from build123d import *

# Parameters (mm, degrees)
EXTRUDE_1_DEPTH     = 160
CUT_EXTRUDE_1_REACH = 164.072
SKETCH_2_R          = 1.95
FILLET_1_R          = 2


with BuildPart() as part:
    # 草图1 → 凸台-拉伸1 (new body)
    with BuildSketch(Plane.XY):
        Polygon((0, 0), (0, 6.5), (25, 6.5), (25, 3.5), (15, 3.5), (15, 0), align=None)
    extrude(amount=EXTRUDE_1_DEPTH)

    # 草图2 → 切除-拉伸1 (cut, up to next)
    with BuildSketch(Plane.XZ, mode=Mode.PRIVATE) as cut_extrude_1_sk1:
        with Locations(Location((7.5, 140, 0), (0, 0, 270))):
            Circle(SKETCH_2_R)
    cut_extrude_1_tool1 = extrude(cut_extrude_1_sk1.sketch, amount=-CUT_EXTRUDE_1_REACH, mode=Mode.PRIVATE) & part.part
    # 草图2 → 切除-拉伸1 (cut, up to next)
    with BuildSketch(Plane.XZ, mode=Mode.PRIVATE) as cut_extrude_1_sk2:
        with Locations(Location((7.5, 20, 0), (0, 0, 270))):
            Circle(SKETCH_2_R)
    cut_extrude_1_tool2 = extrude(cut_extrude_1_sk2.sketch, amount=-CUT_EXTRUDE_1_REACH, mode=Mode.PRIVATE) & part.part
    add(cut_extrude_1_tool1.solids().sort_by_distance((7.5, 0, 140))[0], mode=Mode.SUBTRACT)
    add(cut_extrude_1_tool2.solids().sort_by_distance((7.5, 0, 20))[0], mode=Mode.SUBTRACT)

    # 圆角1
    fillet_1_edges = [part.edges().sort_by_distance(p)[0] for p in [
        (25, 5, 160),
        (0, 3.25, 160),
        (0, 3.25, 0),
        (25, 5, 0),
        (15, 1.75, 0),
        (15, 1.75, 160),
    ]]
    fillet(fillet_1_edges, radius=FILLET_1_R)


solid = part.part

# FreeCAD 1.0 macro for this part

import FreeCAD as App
import Part
import Sketcher


def edges_at(feature, points):
    """Names of the edges that pass closest to the given points."""
    edges = feature.Shape.Edges
    near = lambda p: min(range(len(edges)), key=lambda i: edges[i].distToShape(Part.Vertex(*p))[0])
    return sorted({f"Edge{near(p) + 1}" for p in points})


def add_polygon(sketch, points):
    """Adds a closed chain of lines whose ends are joined by coincident constraints."""
    first, n = sketch.GeometryCount, len(points)
    for a, b in zip(points, points[1:] + points[:1]):
        sketch.addGeometry(Part.LineSegment(App.Vector(*a, 0), App.Vector(*b, 0)), False)
    for i in range(n):
        sketch.addConstraint(Sketcher.Constraint("Coincident", first + i, 2, first + (i + 1) % n, 1))

doc = App.newDocument("Part")
body = doc.addObject("PartDesign::Body", "Body")

# Sketch on XY plane
sketch1 = body.newObject("Sketcher::SketchObject", "Sketch")
sketch1.AttachmentSupport = (doc.getObject("XY_Plane"), [""])
sketch1.MapMode = "FlatFace"
add_polygon(sketch1, [(0, 6.5), (0, 0), (15, 0), (15, 3.5), (25, 3.5), (25, 6.5)])  # lines 0-5
sketch1.addConstraint(Sketcher.Constraint("Vertical", 0))
sketch1.addConstraint(Sketcher.Constraint("Horizontal", 1))
sketch1.addConstraint(Sketcher.Constraint("Vertical", 2))
sketch1.addConstraint(Sketcher.Constraint("Horizontal", 3))
sketch1.addConstraint(Sketcher.Constraint("Vertical", 4))
sketch1.addConstraint(Sketcher.Constraint("Horizontal", 5))
sketch1.addConstraint(Sketcher.Constraint("Coincident", 0, 2, -1, 1))
sketch1.addConstraint(Sketcher.Constraint("DistanceX", 1, 1, 1, 2, 15.0))
sketch1.addConstraint(Sketcher.Constraint("DistanceX", 3, 1, 3, 2, 10.0))
sketch1.addConstraint(Sketcher.Constraint("DistanceY", 4, 1, 4, 2, 3.0))
sketch1.addConstraint(Sketcher.Constraint("DistanceY", 0, 2, 0, 1, 6.5))
pad1 = body.newObject("PartDesign::Pad", "Pad")
pad1.Profile = sketch1
pad1.Length = 160

# Sketch on XZ plane
sketch2 = body.newObject("Sketcher::SketchObject", "Sketch001")
sketch2.AttachmentSupport = (doc.getObject("XZ_Plane"), [""])
sketch2.MapMode = "FlatFace"
sketch2.addGeometry(Part.Circle(App.Vector(7.5, 140, 0), App.Vector(0, 0, 1), 1.95), False)
sketch2.addConstraint(Sketcher.Constraint("Diameter", 0, 3.9))
sketch2.addConstraint(Sketcher.Constraint("DistanceY", -1, 1, 0, 3, 140.0))
sketch2.addConstraint(Sketcher.Constraint("DistanceX", -1, 1, 0, 3, 7.5))
pocket1 = body.newObject("PartDesign::Pocket", "Pocket")
pocket1.Profile = sketch2
pocket1.Type = "UpToFirst"

# Sketch on XZ plane
sketch3 = body.newObject("Sketcher::SketchObject", "Sketch002")
sketch3.AttachmentSupport = (doc.getObject("XZ_Plane"), [""])
sketch3.MapMode = "FlatFace"
sketch3.addGeometry(Part.Circle(App.Vector(7.5, 20, 0), App.Vector(0, 0, 1), 1.95), False)
sketch3.addConstraint(Sketcher.Constraint("Diameter", 0, 3.9))
sketch3.addConstraint(Sketcher.Constraint("DistanceY", -1, 1, 0, 3, 20.0))
sketch3.addConstraint(Sketcher.Constraint("DistanceX", -1, 1, 0, 3, 7.5))
pocket2 = body.newObject("PartDesign::Pocket", "Pocket001")
pocket2.Profile = sketch3
pocket2.Type = "UpToFirst"
doc.recompute()

fillet = body.newObject("PartDesign::Fillet", "Fillet")
fillet.Base = (pocket2, edges_at(pocket2, [
    (25, 5, 160),
    (0, 3.25, 160),
    (0, 3.25, 0),
    (25, 5, 0),
    (15, 1.75, 0),
    (15, 1.75, 160),
]))
fillet.Radius = 2

doc.recompute()
